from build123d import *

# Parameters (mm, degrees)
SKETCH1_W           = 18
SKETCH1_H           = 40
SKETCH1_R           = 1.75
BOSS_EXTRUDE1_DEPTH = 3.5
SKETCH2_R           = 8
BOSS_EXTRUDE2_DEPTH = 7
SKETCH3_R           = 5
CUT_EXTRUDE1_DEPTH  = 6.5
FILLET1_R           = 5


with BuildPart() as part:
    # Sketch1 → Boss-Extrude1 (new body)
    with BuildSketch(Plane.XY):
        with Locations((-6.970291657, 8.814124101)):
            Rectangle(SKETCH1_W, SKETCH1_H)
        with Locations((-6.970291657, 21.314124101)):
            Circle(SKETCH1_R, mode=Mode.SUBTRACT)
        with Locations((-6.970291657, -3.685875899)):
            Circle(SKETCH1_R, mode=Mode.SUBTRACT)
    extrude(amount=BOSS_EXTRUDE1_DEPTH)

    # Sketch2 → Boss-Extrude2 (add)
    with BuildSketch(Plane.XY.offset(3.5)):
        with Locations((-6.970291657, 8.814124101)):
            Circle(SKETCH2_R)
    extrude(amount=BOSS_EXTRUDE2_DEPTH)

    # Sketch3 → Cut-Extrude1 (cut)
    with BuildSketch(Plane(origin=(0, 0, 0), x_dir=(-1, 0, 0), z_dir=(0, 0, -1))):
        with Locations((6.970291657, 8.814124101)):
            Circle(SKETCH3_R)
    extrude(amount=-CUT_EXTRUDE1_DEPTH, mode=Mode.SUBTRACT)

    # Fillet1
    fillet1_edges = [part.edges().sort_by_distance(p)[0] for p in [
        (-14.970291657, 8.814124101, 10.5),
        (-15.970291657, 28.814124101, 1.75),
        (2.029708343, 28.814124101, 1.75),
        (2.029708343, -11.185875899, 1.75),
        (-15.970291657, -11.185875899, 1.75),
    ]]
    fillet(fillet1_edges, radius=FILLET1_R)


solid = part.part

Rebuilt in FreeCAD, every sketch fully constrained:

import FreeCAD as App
import Part
import Sketcher

V = App.Vector


def edges_at(feature, points):
    """Names of the edges that pass closest to the given points."""
    edges = feature.Shape.Edges
    near = lambda p: min(range(len(edges)), key=lambda i: edges[i].distToShape(Part.Vertex(*p))[0])
    return sorted({f"Edge{near(p) + 1}" for p in points})


def add_polygon(sketch, points):
    """Adds a closed chain of lines whose ends are joined by coincident constraints."""
    first, n = sketch.GeometryCount, len(points)
    for a, b in zip(points, points[1:] + points[:1]):
        sketch.addGeometry(Part.LineSegment(App.Vector(*a, 0), App.Vector(*b, 0)), False)
    for i in range(n):
        sketch.addConstraint(Sketcher.Constraint("Coincident", first + i, 2, first + (i + 1) % n, 1))

doc = App.newDocument("Part")
body = doc.addObject("PartDesign::Body", "Body")

# Sketch on XY plane
sketch1 = body.newObject("Sketcher::SketchObject", "Sketch")
sketch1.AttachmentSupport = (doc.getObject("XY_Plane"), [""])
sketch1.MapMode = "FlatFace"
add_polygon(sketch1, [(-15.970292, 28.814124), (-15.970292, -11.185876), (2.029708, -11.185876), (2.029708, 28.814124)])  # lines 0-3
sketch1.addGeometry(Part.Circle(V(-6.970292, -3.685876, 0), V(0, 0, 1), 1.75), False)  # 4
sketch1.addGeometry(Part.Circle(V(-6.970292, 21.314124, 0), V(0, 0, 1), 1.75), False)  # 5
sketch1.addConstraint(Sketcher.Constraint("Vertical", 0))
sketch1.addConstraint(Sketcher.Constraint("Horizontal", 1))
sketch1.addConstraint(Sketcher.Constraint("Vertical", 2))
sketch1.addConstraint(Sketcher.Constraint("Horizontal", 3))
sketch1.addConstraint(Sketcher.Constraint("Equal", 4, 5))
sketch1.addConstraint(Sketcher.Constraint("Vertical", 4, 3, 5, 3))
sketch1.addConstraint(Sketcher.Constraint("Diameter", 4, 3.5))
sketch1.addConstraint(Sketcher.Constraint("DistanceX", 1, 1, 1, 2, 18.0))
sketch1.addConstraint(Sketcher.Constraint("DistanceY", 0, 2, 0, 1, 40.0))
sketch1.addConstraint(Sketcher.Constraint("DistanceY", 4, 3, 5, 3, 25.0))
sketch1.addConstraint(Sketcher.Constraint("DistanceX", 0, 2, 4, 3, 9.0))
sketch1.addConstraint(Sketcher.Constraint("DistanceY", 0, 2, 4, 3, 7.5))
sketch1.addConstraint(Sketcher.Constraint("DistanceX", 4, 3, -1, 1, 6.970292))
sketch1.addConstraint(Sketcher.Constraint("DistanceY", 4, 3, -1, 1, 3.685876))
pad1 = body.newObject("PartDesign::Pad", "Pad")
pad1.Profile = sketch1
pad1.Length = 3.5

# Sketch on XY plane
sketch2 = body.newObject("Sketcher::SketchObject", "Sketch001")
sketch2.AttachmentSupport = (doc.getObject("XY_Plane"), [""])
sketch2.MapMode = "FlatFace"
sketch2.AttachmentOffset = App.Placement(V(0, 0, 3.5), App.Rotation())
sketch2.addGeometry(Part.Circle(V(-6.970292, 8.814124, 0), V(0, 0, 1), 8), False)
sketch2.addConstraint(Sketcher.Constraint("Diameter", 0, 16.0))
sketch2.addConstraint(Sketcher.Constraint("DistanceX", 0, 3, -1, 1, 6.970292))
sketch2.addConstraint(Sketcher.Constraint("DistanceY", -1, 1, 0, 3, 8.814124))
pad2 = body.newObject("PartDesign::Pad", "Pad001")
pad2.Profile = sketch2
pad2.Length = 7

# Sketch on XY plane
sketch3 = body.newObject("Sketcher::SketchObject", "Sketch002")
sketch3.AttachmentSupport = (doc.getObject("XY_Plane"), [""])
sketch3.MapMode = "FlatFace"
sketch3.addGeometry(Part.Circle(V(-6.970292, 8.814124, 0), V(0, 0, 1), 5), False)
sketch3.addConstraint(Sketcher.Constraint("Diameter", 0, 10.0))
sketch3.addConstraint(Sketcher.Constraint("DistanceX", 0, 3, -1, 1, 6.970292))
sketch3.addConstraint(Sketcher.Constraint("DistanceY", -1, 1, 0, 3, 8.814124))
pocket1 = body.newObject("PartDesign::Pocket", "Pocket")
pocket1.Profile = sketch3
pocket1.Length = 6.5
pocket1.Reversed = True
doc.recompute()

fillet = body.newObject("PartDesign::Fillet", "Fillet")
fillet.Base = (pocket1, edges_at(pocket1, [
    (-14.97, 8.814, 10.5),
    (-15.97, 28.814, 1.75),
    (2.03, 28.814, 1.75),
    (2.03, -11.186, 1.75),
    (-15.97, -11.186, 1.75),
]))
fillet.Radius = 5

doc.recompute()
